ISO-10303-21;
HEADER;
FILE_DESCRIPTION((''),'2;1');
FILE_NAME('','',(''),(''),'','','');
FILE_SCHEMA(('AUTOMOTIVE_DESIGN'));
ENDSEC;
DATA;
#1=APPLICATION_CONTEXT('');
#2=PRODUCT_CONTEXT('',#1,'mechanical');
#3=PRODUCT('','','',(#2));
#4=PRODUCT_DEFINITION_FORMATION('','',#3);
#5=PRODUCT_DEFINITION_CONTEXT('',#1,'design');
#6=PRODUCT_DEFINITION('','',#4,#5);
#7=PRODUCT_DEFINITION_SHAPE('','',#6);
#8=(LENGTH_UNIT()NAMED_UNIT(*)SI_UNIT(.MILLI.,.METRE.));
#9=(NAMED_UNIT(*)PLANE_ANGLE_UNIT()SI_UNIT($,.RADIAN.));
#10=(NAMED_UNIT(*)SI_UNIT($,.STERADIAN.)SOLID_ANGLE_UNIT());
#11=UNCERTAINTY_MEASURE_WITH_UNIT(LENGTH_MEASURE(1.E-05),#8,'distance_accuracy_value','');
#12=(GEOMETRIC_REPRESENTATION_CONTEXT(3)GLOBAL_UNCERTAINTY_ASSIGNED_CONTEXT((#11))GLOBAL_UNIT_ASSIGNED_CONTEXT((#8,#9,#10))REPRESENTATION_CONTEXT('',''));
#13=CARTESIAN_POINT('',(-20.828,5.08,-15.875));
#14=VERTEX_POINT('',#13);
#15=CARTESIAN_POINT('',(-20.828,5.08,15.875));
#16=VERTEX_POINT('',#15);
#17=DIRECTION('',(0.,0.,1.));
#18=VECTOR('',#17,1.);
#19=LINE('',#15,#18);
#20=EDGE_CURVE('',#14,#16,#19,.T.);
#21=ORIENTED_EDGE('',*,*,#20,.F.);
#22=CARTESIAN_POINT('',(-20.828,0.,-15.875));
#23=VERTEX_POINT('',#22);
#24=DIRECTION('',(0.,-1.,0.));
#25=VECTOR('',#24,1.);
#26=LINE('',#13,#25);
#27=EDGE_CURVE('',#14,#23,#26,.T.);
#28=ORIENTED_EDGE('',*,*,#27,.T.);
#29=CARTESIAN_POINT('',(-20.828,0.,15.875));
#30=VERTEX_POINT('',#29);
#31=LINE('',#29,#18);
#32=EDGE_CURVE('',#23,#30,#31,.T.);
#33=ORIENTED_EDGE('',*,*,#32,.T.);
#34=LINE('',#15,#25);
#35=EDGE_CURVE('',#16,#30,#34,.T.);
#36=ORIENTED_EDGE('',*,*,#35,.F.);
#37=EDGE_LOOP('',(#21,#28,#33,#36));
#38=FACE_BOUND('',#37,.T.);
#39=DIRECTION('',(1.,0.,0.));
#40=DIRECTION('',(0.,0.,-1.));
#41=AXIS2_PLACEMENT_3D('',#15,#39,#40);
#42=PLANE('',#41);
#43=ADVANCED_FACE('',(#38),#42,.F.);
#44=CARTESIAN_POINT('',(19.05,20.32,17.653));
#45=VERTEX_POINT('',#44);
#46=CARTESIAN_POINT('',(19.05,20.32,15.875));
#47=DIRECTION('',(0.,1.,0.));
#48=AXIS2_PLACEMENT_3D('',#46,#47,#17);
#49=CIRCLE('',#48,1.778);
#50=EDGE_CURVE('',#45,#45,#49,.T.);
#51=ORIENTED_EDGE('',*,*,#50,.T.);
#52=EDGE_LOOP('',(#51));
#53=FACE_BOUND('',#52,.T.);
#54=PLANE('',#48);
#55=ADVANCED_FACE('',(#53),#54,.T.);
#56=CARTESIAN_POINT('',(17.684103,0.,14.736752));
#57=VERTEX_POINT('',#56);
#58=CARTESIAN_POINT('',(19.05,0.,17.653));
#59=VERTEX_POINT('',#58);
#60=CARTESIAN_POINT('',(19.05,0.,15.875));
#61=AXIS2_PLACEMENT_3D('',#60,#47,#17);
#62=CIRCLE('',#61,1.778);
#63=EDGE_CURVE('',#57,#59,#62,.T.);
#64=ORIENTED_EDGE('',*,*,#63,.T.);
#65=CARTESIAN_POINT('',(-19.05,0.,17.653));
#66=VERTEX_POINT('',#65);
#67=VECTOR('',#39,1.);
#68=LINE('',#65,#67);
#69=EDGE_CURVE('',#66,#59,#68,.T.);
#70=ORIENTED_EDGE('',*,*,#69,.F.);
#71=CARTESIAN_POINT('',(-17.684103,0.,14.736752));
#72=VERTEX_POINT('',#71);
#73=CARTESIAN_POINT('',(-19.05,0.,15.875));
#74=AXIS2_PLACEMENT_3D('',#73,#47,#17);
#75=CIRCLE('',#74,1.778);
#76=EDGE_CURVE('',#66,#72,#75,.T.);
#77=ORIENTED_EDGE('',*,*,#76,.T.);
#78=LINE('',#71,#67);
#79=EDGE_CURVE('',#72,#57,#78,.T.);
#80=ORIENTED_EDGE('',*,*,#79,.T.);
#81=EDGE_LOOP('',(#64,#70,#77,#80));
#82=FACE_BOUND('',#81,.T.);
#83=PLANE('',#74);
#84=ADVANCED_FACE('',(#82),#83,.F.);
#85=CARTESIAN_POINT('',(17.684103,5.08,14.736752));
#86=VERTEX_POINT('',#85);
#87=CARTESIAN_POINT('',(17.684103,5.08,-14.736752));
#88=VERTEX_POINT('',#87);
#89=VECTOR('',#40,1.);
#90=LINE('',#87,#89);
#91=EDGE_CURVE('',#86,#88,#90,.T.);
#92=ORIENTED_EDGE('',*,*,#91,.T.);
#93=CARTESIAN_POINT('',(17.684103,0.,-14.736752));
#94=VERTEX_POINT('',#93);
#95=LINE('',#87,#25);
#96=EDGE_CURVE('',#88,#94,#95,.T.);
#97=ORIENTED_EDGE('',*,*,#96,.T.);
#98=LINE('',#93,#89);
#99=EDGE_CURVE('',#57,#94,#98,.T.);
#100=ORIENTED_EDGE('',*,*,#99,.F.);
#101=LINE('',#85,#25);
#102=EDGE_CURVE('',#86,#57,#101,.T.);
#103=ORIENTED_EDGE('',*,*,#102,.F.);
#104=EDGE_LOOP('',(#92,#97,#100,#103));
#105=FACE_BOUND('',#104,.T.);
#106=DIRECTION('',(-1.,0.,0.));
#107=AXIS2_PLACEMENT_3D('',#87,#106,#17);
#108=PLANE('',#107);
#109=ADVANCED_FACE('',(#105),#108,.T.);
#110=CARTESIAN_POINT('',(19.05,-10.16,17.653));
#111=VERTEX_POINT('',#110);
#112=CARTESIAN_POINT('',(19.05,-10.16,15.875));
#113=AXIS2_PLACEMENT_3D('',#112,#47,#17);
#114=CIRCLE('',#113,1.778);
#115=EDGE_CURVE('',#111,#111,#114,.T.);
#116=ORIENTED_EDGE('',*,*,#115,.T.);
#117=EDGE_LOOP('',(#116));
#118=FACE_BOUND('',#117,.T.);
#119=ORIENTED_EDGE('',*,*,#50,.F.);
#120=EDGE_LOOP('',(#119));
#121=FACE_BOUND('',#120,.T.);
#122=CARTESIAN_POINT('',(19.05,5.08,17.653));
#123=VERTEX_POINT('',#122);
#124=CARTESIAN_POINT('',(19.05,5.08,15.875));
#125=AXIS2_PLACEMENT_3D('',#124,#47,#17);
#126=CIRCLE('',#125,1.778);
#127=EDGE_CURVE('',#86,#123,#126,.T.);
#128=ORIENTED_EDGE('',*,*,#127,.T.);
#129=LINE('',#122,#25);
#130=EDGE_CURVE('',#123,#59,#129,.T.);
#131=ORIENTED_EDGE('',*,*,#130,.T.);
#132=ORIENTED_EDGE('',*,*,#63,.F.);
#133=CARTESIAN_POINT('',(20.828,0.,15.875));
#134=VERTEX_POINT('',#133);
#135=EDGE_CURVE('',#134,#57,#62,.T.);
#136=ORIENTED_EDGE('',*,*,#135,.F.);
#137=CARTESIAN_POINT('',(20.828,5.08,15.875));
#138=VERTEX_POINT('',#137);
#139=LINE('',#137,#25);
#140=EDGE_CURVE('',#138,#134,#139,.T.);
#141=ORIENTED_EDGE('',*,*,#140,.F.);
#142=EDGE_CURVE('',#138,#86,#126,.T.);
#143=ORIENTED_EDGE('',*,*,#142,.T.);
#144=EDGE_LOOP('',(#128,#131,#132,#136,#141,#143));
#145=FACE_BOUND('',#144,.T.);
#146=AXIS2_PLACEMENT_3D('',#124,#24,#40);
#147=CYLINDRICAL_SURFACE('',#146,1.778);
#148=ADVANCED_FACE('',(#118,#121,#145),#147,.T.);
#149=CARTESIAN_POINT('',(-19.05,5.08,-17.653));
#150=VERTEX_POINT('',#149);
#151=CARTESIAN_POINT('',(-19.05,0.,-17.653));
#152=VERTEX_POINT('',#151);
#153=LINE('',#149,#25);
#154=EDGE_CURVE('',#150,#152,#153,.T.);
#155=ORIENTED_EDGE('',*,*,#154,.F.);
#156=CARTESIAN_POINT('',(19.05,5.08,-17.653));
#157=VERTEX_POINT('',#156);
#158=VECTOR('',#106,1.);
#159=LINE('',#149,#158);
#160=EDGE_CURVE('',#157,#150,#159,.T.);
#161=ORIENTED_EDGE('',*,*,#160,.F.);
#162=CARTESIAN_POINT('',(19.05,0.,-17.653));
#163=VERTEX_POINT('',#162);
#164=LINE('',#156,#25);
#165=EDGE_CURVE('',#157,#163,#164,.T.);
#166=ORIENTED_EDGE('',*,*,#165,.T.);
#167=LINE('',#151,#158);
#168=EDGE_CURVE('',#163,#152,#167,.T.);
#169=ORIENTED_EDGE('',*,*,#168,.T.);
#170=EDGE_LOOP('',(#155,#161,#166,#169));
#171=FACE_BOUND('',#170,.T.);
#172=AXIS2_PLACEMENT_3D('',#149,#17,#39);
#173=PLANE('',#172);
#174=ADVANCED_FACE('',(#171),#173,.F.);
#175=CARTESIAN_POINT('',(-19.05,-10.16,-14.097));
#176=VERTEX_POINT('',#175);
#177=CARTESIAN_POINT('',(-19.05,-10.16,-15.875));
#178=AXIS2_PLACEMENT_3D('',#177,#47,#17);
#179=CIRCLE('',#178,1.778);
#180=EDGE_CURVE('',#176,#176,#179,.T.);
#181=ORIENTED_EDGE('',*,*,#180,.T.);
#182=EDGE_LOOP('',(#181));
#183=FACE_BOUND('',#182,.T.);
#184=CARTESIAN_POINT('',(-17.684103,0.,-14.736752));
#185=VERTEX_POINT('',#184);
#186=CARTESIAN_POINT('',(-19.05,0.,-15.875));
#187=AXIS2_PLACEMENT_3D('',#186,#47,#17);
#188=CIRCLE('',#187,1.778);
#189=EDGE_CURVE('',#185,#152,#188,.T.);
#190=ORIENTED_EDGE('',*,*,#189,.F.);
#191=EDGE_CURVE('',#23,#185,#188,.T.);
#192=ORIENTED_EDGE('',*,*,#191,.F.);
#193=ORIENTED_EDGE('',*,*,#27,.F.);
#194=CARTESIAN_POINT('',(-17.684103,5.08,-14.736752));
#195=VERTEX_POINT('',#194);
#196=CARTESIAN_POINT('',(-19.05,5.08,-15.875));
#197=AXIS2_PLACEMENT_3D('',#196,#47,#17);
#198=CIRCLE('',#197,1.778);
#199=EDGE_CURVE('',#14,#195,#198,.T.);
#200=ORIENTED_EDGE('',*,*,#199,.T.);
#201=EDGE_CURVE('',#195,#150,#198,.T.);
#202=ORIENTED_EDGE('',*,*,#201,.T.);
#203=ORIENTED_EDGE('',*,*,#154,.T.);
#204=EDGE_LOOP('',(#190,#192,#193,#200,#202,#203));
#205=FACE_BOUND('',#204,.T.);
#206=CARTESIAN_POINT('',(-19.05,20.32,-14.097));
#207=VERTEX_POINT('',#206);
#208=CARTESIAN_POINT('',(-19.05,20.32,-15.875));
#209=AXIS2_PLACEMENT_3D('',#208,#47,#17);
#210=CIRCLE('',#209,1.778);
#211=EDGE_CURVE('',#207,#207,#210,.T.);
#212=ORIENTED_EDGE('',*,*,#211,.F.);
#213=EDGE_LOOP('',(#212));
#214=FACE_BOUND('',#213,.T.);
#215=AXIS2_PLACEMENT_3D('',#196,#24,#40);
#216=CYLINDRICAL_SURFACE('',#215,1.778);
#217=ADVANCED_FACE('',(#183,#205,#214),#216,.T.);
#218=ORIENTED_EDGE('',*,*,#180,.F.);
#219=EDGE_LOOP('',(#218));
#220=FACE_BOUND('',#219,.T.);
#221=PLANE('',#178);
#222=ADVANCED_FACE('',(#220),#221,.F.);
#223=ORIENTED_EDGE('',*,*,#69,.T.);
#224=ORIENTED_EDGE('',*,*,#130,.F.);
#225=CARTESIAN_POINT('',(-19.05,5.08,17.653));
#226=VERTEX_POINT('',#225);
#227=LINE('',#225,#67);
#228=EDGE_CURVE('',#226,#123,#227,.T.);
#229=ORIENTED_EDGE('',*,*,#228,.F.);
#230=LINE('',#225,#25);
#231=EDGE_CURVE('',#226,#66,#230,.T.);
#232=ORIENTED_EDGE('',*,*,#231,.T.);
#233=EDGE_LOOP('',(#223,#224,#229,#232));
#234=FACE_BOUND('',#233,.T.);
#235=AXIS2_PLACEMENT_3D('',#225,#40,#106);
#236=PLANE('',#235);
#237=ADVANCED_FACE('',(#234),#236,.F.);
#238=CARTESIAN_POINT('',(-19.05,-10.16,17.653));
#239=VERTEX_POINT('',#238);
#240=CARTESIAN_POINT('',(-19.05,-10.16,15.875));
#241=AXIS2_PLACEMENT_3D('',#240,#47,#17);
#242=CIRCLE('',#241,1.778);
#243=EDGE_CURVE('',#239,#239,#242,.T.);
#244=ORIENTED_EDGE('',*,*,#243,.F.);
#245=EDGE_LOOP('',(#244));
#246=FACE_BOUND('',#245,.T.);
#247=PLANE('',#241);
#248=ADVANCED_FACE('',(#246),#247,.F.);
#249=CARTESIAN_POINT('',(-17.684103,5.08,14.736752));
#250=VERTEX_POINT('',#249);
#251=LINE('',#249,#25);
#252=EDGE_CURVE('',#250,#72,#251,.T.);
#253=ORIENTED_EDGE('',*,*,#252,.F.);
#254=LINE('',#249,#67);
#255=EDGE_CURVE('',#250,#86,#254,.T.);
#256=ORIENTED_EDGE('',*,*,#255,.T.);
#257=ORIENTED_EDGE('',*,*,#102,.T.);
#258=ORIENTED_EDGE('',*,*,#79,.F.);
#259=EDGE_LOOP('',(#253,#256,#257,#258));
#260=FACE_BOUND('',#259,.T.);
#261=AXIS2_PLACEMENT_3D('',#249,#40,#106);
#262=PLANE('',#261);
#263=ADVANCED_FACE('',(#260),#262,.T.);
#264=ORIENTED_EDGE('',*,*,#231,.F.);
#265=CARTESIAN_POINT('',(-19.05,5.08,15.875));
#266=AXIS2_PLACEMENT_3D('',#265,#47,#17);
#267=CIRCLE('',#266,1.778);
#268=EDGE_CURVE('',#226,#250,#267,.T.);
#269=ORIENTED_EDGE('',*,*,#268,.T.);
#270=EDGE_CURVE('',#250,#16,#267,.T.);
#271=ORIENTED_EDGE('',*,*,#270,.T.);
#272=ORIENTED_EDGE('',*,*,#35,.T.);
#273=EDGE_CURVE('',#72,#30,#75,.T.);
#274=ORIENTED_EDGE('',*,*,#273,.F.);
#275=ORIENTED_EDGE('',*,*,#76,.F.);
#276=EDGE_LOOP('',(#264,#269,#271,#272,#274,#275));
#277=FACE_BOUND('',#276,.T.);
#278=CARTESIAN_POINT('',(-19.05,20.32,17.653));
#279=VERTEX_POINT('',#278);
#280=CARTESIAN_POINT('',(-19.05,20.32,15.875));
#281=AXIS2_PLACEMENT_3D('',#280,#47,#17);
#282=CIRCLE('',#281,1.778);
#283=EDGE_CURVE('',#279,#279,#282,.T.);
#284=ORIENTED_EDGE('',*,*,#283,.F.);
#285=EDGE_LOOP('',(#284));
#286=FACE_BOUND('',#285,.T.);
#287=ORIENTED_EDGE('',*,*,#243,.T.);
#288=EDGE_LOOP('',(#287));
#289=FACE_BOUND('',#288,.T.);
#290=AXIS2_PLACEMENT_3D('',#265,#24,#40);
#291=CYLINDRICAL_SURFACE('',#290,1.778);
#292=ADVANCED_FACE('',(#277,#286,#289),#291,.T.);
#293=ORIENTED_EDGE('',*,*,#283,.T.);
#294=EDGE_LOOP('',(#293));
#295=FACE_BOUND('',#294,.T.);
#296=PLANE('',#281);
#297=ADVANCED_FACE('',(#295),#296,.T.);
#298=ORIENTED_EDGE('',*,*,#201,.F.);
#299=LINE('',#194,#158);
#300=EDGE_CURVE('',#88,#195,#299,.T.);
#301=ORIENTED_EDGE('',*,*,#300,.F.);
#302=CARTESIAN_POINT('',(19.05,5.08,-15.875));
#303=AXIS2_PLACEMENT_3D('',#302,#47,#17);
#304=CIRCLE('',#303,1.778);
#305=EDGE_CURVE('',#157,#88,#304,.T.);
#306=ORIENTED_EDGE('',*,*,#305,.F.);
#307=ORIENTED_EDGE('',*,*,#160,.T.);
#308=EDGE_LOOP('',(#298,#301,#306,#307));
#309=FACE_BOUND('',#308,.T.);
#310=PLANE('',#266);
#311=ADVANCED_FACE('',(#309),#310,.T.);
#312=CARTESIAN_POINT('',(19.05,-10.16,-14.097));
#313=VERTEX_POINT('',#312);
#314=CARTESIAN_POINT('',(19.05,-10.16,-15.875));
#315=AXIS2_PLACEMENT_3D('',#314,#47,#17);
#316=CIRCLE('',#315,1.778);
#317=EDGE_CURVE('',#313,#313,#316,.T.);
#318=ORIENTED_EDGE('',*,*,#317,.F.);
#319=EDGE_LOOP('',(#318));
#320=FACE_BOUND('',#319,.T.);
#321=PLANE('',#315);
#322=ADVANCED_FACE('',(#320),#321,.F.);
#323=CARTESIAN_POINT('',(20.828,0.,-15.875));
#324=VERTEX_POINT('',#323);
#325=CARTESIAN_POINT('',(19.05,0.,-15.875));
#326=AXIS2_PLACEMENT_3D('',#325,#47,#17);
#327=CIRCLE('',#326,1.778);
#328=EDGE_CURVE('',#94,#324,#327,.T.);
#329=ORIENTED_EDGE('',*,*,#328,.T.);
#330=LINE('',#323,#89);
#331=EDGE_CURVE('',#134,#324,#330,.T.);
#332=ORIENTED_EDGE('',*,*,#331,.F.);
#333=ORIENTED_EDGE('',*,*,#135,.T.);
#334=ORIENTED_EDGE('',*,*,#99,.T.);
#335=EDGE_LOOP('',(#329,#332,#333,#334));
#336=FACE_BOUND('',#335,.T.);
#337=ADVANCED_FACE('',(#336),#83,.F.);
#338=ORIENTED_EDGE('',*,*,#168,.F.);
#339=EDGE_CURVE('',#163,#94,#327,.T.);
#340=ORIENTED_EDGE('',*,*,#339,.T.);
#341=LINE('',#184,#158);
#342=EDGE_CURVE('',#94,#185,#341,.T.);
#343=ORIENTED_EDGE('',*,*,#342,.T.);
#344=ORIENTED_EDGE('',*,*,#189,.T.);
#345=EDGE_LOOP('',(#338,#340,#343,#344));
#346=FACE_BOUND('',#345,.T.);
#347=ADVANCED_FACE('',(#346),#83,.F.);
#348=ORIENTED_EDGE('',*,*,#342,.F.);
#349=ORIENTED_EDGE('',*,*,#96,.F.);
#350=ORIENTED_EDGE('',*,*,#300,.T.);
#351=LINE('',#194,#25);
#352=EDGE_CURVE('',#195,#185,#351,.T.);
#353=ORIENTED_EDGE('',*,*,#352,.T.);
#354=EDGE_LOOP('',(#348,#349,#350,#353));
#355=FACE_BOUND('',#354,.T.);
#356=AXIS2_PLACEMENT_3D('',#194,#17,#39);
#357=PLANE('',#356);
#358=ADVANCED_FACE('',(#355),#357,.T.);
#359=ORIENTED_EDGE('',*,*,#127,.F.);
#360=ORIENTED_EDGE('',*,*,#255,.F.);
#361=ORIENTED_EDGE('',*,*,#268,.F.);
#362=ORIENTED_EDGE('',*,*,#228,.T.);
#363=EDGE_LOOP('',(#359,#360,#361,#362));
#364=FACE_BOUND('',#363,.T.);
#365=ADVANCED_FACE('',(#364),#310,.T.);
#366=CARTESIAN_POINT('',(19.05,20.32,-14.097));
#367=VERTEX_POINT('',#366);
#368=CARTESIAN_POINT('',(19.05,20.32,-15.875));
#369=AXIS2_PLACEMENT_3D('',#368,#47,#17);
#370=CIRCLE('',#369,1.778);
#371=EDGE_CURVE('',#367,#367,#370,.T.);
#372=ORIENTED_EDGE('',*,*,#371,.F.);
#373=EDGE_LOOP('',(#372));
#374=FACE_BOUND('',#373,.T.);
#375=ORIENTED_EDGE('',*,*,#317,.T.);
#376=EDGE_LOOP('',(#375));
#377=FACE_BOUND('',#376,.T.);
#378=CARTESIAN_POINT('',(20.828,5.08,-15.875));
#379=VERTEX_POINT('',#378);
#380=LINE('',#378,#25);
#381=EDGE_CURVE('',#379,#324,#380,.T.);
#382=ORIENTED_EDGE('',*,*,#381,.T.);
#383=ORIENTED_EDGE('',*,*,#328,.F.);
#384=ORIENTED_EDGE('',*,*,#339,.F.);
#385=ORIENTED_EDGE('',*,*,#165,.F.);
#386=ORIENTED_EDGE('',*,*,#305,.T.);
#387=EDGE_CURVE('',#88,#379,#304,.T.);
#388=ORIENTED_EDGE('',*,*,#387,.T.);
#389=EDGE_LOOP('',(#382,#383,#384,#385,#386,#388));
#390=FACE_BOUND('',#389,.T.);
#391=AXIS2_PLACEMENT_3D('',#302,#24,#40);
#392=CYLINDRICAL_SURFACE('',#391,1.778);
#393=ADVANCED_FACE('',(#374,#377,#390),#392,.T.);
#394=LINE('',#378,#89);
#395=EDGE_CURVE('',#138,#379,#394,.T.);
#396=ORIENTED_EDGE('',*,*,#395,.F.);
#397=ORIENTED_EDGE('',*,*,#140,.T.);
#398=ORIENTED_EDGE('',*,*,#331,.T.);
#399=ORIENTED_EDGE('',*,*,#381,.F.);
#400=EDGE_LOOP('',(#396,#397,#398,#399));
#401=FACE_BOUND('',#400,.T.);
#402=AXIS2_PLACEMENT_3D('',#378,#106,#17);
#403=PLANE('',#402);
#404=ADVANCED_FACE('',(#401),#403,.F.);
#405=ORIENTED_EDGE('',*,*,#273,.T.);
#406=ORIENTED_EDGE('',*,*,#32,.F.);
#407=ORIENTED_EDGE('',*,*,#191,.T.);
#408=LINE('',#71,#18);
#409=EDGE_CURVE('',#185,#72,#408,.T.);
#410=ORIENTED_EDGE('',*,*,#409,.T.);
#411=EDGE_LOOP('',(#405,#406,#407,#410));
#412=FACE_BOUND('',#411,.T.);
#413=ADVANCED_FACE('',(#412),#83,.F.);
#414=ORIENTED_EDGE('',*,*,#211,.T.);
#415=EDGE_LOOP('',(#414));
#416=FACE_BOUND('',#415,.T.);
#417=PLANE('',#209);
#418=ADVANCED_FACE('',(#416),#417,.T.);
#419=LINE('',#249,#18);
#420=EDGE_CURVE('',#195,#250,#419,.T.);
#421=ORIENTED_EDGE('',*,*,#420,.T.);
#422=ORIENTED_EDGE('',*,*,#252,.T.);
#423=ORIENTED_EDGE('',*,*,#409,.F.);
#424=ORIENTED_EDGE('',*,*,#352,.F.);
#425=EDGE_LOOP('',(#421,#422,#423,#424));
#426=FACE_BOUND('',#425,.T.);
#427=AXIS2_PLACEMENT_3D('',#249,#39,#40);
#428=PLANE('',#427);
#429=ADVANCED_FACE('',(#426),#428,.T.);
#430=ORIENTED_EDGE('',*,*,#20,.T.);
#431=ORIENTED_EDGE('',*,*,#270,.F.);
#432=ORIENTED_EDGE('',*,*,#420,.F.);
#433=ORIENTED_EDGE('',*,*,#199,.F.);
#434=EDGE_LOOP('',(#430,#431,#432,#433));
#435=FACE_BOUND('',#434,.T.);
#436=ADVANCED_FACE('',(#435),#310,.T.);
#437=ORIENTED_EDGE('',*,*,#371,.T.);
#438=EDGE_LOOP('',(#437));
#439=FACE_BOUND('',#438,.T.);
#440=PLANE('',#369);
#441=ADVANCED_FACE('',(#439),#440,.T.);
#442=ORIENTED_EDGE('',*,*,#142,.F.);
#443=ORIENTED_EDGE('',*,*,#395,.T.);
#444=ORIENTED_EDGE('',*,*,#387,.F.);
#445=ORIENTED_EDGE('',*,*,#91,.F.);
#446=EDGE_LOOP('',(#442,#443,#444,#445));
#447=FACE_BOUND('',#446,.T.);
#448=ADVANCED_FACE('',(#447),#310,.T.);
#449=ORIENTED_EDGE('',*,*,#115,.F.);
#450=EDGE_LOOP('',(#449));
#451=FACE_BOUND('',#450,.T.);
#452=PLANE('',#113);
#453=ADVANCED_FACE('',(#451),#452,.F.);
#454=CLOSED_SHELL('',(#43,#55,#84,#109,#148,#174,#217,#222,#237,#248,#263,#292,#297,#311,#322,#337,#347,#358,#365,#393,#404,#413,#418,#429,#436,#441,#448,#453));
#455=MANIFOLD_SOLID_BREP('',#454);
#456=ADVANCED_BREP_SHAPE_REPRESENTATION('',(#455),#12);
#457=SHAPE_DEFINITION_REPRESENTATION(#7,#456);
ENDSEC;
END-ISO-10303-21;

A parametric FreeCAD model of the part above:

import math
import FreeCAD as App
import Part
import Sketcher
from FreeCAD import Vector
Q = App.Units.Quantity


def add_polygon(sketch, points):
    """Adds a closed chain of lines whose ends are joined by coincident constraints."""
    first, n = sketch.GeometryCount, len(points)
    for a, b in zip(points, points[1:] + points[:1]):
        sketch.addGeometry(Part.LineSegment(App.Vector(*a, 0), App.Vector(*b, 0)), False)
    for i in range(n):
        sketch.addConstraint(Sketcher.Constraint("Coincident", first + i, 2, first + (i + 1) % n, 1))

doc = App.newDocument("Part")
body = doc.addObject("PartDesign::Body", "Body")

# Sketch on XZ plane
sketch1 = body.newObject("Sketcher::SketchObject", "Sketch")
sketch1.AttachmentSupport = (doc.getObject("XZ_Plane"), [""])
sketch1.MapMode = "FlatFace"
sketch1.addGeometry(Part.LineSegment(Vector(-20.8, -15.9, 0), Vector(-20.8, 15.9, 0)), False)  # 0
sketch1.addGeometry(Part.ArcOfCircle(Part.Circle(Vector(-19.1, 15.9, 0), Vector(0, 0, 1), 1.8), math.radians(90), math.radians(180)), False)  # 1
sketch1.addGeometry(Part.LineSegment(Vector(-19.1, 17.7, 0), Vector(19.1, 17.7, 0)), False)  # 2
sketch1.addGeometry(Part.ArcOfCircle(Part.Circle(Vector(19.1, 15.9, 0), Vector(0, 0, 1), 1.8), math.radians(0), math.radians(90)), False)  # 3
sketch1.addGeometry(Part.LineSegment(Vector(20.8, 15.9, 0), Vector(20.8, -15.9, 0)), False)  # 4
sketch1.addGeometry(Part.ArcOfCircle(Part.Circle(Vector(19.1, -15.9, 0), Vector(0, 0, 1), 1.8), math.radians(-90), math.radians(0)), False)  # 5
sketch1.addGeometry(Part.LineSegment(Vector(19.1, -17.7, 0), Vector(-19.1, -17.7, 0)), False)  # 6
sketch1.addGeometry(Part.ArcOfCircle(Part.Circle(Vector(-19.1, -15.9, 0), Vector(0, 0, 1), 1.8), math.radians(180), math.radians(270)), False)  # 7
add_polygon(sketch1, [(-17.7, 14.7), (-17.7, -14.7), (17.7, -14.7), (17.7, 14.7)])  # lines 8-11
sketch1.addConstraint([
    Sketcher.Constraint("Tangent", 0, 2, 1, 2),
    Sketcher.Constraint("Tangent", 1, 1, 2, 1),
    Sketcher.Constraint("Tangent", 2, 2, 3, 2),
    Sketcher.Constraint("Tangent", 3, 1, 4, 1),
    Sketcher.Constraint("Tangent", 4, 2, 5, 2),
    Sketcher.Constraint("Tangent", 5, 1, 6, 1),
    Sketcher.Constraint("Tangent", 6, 2, 7, 2),
    Sketcher.Constraint("Tangent", 7, 1, 0, 1),
    Sketcher.Constraint("Vertical", 0),
    Sketcher.Constraint("Horizontal", 2),
    Sketcher.Constraint("Vertical", 4),
    Sketcher.Constraint("Horizontal", 6),
    Sketcher.Constraint("Vertical", 8),
    Sketcher.Constraint("Horizontal", 9),
    Sketcher.Constraint("Vertical", 10),
    Sketcher.Constraint("Horizontal", 11),
    Sketcher.Constraint("Equal", 1, 3),
    Sketcher.Constraint("Equal", 3, 5),
    Sketcher.Constraint("Equal", 5, 7),
    Sketcher.Constraint("Symmetric", 1, 3, 5, 3, -1, 1),
    Sketcher.Constraint("Symmetric", 8, 2, 10, 2, -1, 1),
    Sketcher.Constraint("Radius", 1, Q("0.07 in")),
    Sketcher.Constraint("DistanceX", 2, 1, 2, 2, Q("1.5 in")),
    Sketcher.Constraint("DistanceY", 0, 1, 0, 2, Q("1.25 in")),
    Sketcher.Constraint("DistanceX", 9, 1, 9, 2, 35.368205),
    Sketcher.Constraint("DistanceY", 8, 2, 8, 1, 29.473504),
])
pad1 = body.newObject("PartDesign::Pad", "Pad")
pad1.Profile = sketch1
pad1.Length = Q("0.2 in")
pad1.Reversed = True

# Sketch on XZ plane
sketch2 = body.newObject("Sketcher::SketchObject", "Sketch001")
sketch2.AttachmentSupport = (doc.getObject("XZ_Plane"), [""])
sketch2.MapMode = "FlatFace"
sketch2.AttachmentOffset = App.Placement(Vector(0, 0, -0.2 * 25.4), App.Rotation())
sketch2.addGeometry([
    Part.Circle(Vector(-19.1, 15.9, 0), Vector(0, 0, 1), 1.8),
    Part.Circle(Vector(19.1, 15.9, 0), Vector(0, 0, 1), 1.8),
    Part.Circle(Vector(19.1, -15.9, 0), Vector(0, 0, 1), 1.8),
    Part.Circle(Vector(-19.1, -15.9, 0), Vector(0, 0, 1), 1.8),
], False)
sketch2.addConstraint([
    Sketcher.Constraint("Equal", 0, 1),
    Sketcher.Constraint("Equal", 1, 2),
    Sketcher.Constraint("Equal", 2, 3),
    Sketcher.Constraint("Symmetric", 0, 3, 2, 3, -1, 1),
    Sketcher.Constraint("Symmetric", 1, 3, 3, 3, -1, 1),
    Sketcher.Constraint("Symmetric", 0, 3, 1, 3, -2),
    Sketcher.Constraint("Diameter", 0, Q("0.14 in")),
    Sketcher.Constraint("DistanceX", 0, 3, 1, 3, Q("1.5 in")),
    Sketcher.Constraint("DistanceY", 2, 3, 1, 3, Q("1.25 in")),
])
pad2 = body.newObject("PartDesign::Pad", "Pad001")
pad2.Profile = sketch2
pad2.Type = "TwoLengths"
pad2.Length = Q("0.6 in")
pad2.Length2 = Q("0.6 in")
pad2.Reversed = True

doc.recompute()
